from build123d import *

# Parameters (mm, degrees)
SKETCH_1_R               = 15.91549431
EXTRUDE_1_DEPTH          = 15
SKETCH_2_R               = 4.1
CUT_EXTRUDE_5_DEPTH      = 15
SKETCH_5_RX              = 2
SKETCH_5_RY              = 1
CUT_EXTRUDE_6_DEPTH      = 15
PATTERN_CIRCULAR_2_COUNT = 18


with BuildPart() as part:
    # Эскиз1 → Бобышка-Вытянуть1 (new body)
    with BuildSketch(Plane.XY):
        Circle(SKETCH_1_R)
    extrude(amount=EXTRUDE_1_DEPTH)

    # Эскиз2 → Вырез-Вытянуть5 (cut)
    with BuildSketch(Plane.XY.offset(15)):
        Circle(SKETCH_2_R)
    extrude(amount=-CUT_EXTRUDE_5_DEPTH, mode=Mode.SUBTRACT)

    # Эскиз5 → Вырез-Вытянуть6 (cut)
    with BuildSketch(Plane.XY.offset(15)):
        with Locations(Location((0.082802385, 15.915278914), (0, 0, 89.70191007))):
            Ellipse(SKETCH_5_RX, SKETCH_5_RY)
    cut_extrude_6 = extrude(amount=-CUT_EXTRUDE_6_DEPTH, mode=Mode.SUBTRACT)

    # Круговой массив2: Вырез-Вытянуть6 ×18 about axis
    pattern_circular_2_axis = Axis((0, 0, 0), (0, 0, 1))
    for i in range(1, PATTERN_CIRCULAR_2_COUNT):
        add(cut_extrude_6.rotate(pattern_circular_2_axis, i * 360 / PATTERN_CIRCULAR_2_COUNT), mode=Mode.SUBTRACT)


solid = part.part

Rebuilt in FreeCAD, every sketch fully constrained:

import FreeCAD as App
import Part
import Sketcher

doc = App.newDocument("Part")
params = doc.addObject("Spreadsheet::Sheet", "Params")
for row, (alias, value) in enumerate([
    ("pad1_length", "15 mm"),
    ("sketch2_diameter", "8.2 mm"),
    ("pocket1_length", "15 mm"),
    ("pocket2_length", "15 mm"),
], start=1):
    params.set(f"A{row}", alias)
    params.set(f"B{row}", "=" + value)
    params.setAlias(f"B{row}", alias)

body = doc.addObject("PartDesign::Body", "Body")

sketch1 = body.newObject("Sketcher::SketchObject", "Sketch")
sketch1.AttachmentSupport = (doc.getObject("XY_Plane"), [""])
sketch1.MapMode = "FlatFace"
sketch1.addGeometry(Part.Circle(App.Vector(0, 0, 0), App.Vector(0, 0, 1), 16), False)
sketch1.addConstraint([
    Sketcher.Constraint("Coincident", 0, 3, -1, 1),
    Sketcher.Constraint("Diameter", 0, 31.830989),
])
pad1 = body.newObject("PartDesign::Pad", "Pad")
pad1.Profile = sketch1
pad1.setExpression("Length", "Params.pad1_length")

sketch2 = body.newObject("Sketcher::SketchObject", "Sketch001")
sketch2.AttachmentSupport = (doc.getObject("XY_Plane"), [""])
sketch2.MapMode = "FlatFace"
sketch2.AttachmentOffset = App.Placement(App.Vector(0, 0, 15), App.Rotation())
sketch2.addGeometry(Part.Circle(App.Vector(0, 0, 0), App.Vector(0, 0, 1), 4.1), False)
sketch2.addConstraint([
    Sketcher.Constraint("Coincident", 0, 3, -1, 1),
    Sketcher.Constraint("Diameter", 0, 8.2),
])
sketch2.setExpression("Constraints[1]", "Params.sketch2_diameter")
pocket1 = body.newObject("PartDesign::Pocket", "Pocket")
pocket1.Profile = sketch2
pocket1.setExpression("Length", "Params.pocket1_length")

sketch3 = body.newObject("Sketcher::SketchObject", "Sketch002")
sketch3.AttachmentSupport = (doc.getObject("XY_Plane"), [""])
sketch3.MapMode = "FlatFace"
sketch3.AttachmentOffset = App.Placement(App.Vector(0, 0, 15), App.Rotation())
sketch3.addGeometry(Part.Ellipse(App.Vector(0.093208, 17.915252, 0), App.Vector(-0.917184, 15.920482, 0), App.Vector(0.082802, 15.915279, 0)), False)
sketch3.addConstraint(Sketcher.Constraint("Block", 0))
pocket2 = body.newObject("PartDesign::Pocket", "Pocket001")
pocket2.Profile = sketch3
pocket2.setExpression("Length", "Params.pocket2_length")
doc.recompute()

polarpattern = body.newObject("PartDesign::PolarPattern", "PolarPattern")
polarpattern.Originals = [pocket2]
polarpattern.Axis = (doc.getObject("Z_Axis"), [""])
polarpattern.Angle = 360
polarpattern.Occurrences = 18
body.Tip = polarpattern

doc.recompute()
